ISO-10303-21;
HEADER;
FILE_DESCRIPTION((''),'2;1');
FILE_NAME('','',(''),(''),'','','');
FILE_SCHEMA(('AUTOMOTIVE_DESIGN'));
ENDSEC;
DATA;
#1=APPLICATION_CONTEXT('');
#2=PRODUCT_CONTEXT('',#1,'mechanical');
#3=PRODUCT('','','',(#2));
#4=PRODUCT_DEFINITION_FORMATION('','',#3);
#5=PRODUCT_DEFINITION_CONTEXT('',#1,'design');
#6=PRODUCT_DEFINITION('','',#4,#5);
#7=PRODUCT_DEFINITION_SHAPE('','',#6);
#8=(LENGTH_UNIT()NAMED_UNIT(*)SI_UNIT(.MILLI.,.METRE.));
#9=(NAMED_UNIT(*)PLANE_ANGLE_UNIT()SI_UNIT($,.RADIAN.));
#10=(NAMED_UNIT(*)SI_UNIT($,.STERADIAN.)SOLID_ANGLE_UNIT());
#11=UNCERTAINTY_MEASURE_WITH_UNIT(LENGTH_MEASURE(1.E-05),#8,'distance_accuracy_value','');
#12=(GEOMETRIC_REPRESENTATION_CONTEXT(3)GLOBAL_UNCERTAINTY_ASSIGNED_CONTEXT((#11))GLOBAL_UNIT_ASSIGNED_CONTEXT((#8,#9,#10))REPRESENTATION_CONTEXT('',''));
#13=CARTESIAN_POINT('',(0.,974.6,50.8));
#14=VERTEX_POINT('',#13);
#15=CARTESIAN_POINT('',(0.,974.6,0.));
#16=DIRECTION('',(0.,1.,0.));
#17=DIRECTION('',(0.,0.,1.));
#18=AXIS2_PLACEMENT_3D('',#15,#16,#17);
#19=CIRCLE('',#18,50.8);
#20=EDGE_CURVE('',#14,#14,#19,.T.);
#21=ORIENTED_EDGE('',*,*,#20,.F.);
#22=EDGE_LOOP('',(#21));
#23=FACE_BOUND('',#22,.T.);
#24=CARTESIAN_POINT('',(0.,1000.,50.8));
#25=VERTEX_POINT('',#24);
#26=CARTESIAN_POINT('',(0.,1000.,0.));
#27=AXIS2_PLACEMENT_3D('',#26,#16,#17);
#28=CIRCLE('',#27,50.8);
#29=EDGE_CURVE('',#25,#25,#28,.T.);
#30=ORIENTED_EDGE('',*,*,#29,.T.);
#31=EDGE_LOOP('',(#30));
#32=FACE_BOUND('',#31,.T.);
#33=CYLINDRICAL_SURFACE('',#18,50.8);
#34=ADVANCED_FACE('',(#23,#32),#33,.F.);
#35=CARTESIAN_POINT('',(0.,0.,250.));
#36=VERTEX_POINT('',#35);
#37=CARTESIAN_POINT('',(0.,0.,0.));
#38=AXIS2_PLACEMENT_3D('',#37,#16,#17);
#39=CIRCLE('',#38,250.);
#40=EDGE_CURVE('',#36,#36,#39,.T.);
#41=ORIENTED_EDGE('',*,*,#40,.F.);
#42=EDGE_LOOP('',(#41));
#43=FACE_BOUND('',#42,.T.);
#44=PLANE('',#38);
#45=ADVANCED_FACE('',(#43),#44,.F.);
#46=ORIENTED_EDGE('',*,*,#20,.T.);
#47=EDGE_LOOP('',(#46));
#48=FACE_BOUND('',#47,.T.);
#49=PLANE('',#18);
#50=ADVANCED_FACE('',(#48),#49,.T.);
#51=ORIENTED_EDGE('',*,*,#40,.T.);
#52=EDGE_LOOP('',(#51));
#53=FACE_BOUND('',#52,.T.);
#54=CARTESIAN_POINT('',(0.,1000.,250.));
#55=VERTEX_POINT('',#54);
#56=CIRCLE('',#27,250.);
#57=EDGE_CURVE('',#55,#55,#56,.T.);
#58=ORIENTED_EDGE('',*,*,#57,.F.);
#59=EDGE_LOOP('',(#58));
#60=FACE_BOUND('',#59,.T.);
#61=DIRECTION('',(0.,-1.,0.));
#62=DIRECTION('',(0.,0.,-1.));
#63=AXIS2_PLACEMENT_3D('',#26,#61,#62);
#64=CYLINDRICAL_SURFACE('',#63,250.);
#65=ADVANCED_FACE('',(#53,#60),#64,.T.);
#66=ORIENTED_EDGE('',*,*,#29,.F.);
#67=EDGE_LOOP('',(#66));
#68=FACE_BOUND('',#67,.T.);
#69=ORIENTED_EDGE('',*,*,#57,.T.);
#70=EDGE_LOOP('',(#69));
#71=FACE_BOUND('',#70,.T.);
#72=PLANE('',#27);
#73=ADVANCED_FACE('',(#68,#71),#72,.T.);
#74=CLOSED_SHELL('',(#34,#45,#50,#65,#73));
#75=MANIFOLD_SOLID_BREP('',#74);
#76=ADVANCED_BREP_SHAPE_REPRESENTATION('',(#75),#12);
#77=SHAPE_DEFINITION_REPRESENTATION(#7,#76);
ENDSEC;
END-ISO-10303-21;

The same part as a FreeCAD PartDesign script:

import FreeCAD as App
import Part
import Sketcher

V = App.Vector
Q = App.Units.Quantity

doc = App.newDocument("Part")
params = doc.addObject("Spreadsheet::Sheet", "Params")
for row, (alias, value) in enumerate([
    ("sketch1_diameter", "500 mm"),
    ("pad1_length", "1000 mm"),
    ("sketch2_diameter", "101.6 mm"),
    ("pocket1_length", "25.4 mm"),
], start=1):
    params.set(f"A{row}", alias)
    params.set(f"B{row}", "=" + value)
    params.setAlias(f"B{row}", alias)

body = doc.addObject("PartDesign::Body", "Body")

# Sketch on XZ plane
sketch1 = body.newObject("Sketcher::SketchObject", "Sketch")
sketch1.AttachmentSupport = (doc.getObject("XZ_Plane"), [""])
sketch1.MapMode = "FlatFace"
sketch1.addGeometry(Part.Circle(V(0, 0, 0), V(0, 0, 1), 250), False)
sketch1.addConstraint(Sketcher.Constraint("Coincident", 0, 3, -1, 1))
sketch1.addConstraint(Sketcher.Constraint("Diameter", 0, Q("500 mm")))
sketch1.setExpression("Constraints[1]", "Params.sketch1_diameter")
pad1 = body.newObject("PartDesign::Pad", "Pad")
pad1.Profile = sketch1
pad1.setExpression("Length", "Params.pad1_length")
pad1.Reversed = True

# Sketch on XZ plane
sketch2 = body.newObject("Sketcher::SketchObject", "Sketch001")
sketch2.AttachmentSupport = (doc.getObject("XZ_Plane"), [""])
sketch2.MapMode = "FlatFace"
sketch2.AttachmentOffset = App.Placement(V(0, 0, -1000), App.Rotation())
sketch2.addGeometry(Part.Circle(V(0, 0, 0), V(0, 0, 1), 51), False)
sketch2.addConstraint(Sketcher.Constraint("Coincident", 0, 3, -1, 1))
sketch2.addConstraint(Sketcher.Constraint("Diameter", 0, Q("101.6 mm")))
sketch2.setExpression("Constraints[1]", "Params.sketch2_diameter")
pocket1 = body.newObject("PartDesign::Pocket", "Pocket")
pocket1.Profile = sketch2
pocket1.setExpression("Length", "Params.pocket1_length")
pocket1.Reversed = True

doc.recompute()
